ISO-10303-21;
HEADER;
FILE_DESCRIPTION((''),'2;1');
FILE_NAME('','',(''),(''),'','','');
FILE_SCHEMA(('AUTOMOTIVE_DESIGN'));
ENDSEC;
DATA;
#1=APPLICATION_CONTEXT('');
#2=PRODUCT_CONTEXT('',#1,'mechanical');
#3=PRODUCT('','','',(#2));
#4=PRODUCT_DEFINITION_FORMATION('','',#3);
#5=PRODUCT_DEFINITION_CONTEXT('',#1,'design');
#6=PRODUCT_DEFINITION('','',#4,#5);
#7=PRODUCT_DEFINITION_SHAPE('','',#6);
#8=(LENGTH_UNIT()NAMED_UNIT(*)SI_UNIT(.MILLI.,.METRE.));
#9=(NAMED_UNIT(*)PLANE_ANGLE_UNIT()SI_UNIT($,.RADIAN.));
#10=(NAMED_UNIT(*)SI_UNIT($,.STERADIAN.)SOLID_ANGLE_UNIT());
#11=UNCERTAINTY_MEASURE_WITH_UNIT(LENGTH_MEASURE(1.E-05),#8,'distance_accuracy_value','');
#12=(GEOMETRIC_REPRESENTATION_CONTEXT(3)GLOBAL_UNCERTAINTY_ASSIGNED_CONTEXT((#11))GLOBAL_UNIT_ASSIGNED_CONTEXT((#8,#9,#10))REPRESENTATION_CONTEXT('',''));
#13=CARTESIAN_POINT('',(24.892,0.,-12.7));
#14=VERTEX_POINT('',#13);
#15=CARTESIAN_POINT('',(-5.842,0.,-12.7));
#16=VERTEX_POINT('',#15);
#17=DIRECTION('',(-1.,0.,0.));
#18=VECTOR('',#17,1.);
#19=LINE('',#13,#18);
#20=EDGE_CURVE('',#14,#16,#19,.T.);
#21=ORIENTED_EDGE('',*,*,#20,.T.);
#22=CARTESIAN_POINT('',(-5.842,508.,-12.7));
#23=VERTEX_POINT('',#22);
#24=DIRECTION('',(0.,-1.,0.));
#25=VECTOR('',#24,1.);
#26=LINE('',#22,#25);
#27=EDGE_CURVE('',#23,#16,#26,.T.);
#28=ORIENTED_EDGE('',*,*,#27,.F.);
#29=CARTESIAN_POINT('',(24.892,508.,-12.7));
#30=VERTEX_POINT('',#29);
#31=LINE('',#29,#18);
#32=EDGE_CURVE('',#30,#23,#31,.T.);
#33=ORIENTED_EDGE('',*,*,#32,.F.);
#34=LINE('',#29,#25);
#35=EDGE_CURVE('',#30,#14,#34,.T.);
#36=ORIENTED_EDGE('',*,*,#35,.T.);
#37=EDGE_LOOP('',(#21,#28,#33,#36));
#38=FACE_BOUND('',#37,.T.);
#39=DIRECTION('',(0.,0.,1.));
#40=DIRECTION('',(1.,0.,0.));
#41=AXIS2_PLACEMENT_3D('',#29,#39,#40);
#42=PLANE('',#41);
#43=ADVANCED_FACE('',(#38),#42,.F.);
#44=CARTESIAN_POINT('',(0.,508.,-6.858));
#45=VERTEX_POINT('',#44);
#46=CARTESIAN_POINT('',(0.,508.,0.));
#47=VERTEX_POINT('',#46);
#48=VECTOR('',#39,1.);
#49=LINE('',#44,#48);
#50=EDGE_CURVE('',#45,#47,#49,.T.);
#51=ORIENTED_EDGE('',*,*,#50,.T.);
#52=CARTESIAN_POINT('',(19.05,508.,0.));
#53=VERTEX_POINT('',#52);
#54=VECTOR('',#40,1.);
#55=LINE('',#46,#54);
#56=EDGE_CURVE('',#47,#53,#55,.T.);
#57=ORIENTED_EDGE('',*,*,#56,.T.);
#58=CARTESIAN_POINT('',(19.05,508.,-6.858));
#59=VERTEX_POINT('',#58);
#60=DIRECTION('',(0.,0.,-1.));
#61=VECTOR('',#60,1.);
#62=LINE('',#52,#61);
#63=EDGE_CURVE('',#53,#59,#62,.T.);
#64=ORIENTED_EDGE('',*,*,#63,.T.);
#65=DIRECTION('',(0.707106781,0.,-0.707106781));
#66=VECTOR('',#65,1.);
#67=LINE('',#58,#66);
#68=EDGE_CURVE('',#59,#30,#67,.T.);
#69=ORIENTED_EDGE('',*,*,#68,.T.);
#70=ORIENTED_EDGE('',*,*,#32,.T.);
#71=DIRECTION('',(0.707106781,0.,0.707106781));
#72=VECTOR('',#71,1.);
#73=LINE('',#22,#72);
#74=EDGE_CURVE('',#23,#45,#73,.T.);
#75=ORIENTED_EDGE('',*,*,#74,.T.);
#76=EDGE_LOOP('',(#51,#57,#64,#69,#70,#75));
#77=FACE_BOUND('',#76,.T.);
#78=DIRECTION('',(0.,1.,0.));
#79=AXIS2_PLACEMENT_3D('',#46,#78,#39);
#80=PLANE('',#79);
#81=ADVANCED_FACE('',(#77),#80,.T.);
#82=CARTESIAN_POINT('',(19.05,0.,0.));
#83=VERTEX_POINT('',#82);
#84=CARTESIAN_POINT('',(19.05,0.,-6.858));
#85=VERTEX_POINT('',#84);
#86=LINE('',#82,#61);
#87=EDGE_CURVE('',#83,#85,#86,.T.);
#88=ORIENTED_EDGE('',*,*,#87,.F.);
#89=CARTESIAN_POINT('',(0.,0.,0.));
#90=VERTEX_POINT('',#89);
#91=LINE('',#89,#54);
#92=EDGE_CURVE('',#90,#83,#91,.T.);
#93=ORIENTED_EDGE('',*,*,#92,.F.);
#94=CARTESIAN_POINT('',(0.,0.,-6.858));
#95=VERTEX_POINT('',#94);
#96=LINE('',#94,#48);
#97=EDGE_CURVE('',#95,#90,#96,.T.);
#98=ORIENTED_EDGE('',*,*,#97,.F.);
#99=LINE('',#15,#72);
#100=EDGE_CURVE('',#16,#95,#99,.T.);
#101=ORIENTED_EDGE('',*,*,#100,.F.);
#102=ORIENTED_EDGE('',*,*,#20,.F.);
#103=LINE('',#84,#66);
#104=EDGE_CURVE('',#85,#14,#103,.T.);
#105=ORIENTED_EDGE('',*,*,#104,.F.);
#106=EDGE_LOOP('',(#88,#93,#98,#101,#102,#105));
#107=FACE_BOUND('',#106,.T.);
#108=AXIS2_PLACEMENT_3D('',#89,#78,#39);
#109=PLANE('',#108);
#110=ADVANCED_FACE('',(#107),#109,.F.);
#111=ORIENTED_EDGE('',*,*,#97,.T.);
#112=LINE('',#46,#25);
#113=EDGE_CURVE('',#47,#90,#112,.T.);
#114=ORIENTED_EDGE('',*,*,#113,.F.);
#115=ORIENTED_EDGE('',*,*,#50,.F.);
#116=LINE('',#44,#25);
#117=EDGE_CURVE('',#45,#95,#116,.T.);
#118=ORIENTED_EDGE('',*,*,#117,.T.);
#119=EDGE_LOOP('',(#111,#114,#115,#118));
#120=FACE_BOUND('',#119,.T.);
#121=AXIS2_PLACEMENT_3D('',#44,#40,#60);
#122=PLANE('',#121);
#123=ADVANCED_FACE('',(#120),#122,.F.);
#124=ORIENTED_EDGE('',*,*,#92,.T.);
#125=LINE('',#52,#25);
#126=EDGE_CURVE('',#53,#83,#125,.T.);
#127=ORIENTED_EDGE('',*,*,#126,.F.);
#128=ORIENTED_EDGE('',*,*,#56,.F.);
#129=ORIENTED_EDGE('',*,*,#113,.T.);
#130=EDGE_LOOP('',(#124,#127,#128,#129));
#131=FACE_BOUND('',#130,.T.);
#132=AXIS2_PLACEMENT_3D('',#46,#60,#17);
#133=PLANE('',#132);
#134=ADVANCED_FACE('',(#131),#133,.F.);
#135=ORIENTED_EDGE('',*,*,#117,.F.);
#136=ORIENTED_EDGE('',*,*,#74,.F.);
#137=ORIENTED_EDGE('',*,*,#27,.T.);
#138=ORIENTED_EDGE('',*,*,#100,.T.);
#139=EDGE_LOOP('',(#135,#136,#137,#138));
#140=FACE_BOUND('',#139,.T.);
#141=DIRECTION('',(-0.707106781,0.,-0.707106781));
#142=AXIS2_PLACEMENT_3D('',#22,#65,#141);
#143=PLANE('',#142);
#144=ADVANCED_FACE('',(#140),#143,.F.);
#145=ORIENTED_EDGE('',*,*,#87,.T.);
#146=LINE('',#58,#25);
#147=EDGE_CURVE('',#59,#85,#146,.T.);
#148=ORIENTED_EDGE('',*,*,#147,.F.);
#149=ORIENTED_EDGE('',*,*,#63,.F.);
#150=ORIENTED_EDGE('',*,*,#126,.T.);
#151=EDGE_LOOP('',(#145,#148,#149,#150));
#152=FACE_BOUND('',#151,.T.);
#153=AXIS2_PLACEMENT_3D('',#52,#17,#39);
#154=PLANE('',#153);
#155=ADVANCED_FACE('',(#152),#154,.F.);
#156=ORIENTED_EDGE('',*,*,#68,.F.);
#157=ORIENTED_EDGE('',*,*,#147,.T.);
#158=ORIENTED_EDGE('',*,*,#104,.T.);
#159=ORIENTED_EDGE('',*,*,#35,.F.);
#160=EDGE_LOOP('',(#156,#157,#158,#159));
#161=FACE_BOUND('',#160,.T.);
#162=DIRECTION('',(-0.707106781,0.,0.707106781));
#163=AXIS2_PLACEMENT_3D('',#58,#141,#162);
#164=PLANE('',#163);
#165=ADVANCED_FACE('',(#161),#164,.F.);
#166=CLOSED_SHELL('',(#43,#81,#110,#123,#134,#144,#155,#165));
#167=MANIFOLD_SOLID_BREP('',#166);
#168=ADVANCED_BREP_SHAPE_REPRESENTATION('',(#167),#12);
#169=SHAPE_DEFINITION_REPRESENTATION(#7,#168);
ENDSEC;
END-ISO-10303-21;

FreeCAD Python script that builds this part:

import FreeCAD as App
import Part
import Sketcher
from FreeCAD import Vector
Q = App.Units.Quantity


def add_polygon(sketch, points):
    """Adds a closed chain of lines whose ends are joined by coincident constraints."""
    first, n = sketch.GeometryCount, len(points)
    for a, b in zip(points, points[1:] + points[:1]):
        sketch.addGeometry(Part.LineSegment(App.Vector(*a, 0), App.Vector(*b, 0)), False)
    for i in range(n):
        sketch.addConstraint(Sketcher.Constraint("Coincident", first + i, 2, first + (i + 1) % n, 1))

doc = App.newDocument("Part")
body = doc.addObject("PartDesign::Body", "Body")

sketch1 = body.newObject("Sketcher::SketchObject", "Sketch")
sketch1.AttachmentSupport = (doc.getObject("XZ_Plane"), [""])
sketch1.MapMode = "FlatFace"
add_polygon(sketch1, [(0, 0), (19, 0), (19, -7), (25, -13), (-6, -13), (0, -7)])
sketch1.addConstraint([
    Sketcher.Constraint("Horizontal", 0),
    Sketcher.Constraint("Vertical", 1),
    Sketcher.Constraint("Horizontal", 3),
    Sketcher.Constraint("Vertical", 5),
    Sketcher.Constraint("Coincident", 5, 2, -1, 1),
    Sketcher.Constraint("Perpendicular", 2, 4),
    Sketcher.Constraint("Horizontal", 1, 2, 4, 2),
    Sketcher.Constraint("Equal", 2, 4),
    Sketcher.Constraint("DistanceX", 0, 1, 0, 2, Q("0.75 in")),
    Sketcher.Constraint("DistanceX", 3, 2, 3, 1, Q("1.21 in")),
    Sketcher.Constraint("DistanceY", 1, 2, 1, 1, Q("0.27 in")),
])
pad1 = body.newObject("PartDesign::Pad", "Pad")
pad1.Profile = sketch1
pad1.Length = Q("20 in")
pad1.Reversed = True

doc.recompute()
